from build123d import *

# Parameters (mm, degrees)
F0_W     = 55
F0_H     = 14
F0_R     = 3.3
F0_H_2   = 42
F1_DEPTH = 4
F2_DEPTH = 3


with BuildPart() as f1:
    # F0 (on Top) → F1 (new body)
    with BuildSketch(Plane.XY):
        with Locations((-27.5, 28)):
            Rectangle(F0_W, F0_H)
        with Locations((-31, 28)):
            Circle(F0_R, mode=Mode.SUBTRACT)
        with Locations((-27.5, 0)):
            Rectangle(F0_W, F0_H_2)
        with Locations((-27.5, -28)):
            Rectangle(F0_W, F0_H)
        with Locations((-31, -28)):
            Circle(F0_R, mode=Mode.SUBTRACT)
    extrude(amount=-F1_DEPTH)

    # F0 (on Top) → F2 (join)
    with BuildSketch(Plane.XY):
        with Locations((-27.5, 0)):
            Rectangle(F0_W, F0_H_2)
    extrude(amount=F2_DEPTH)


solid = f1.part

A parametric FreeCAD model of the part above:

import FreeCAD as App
import Part
import Sketcher

V = App.Vector


def add_polygon(sketch, points):
    """Adds a closed chain of lines whose ends are joined by coincident constraints."""
    first, n = sketch.GeometryCount, len(points)
    for a, b in zip(points, points[1:] + points[:1]):
        sketch.addGeometry(Part.LineSegment(App.Vector(*a, 0), App.Vector(*b, 0)), False)
    for i in range(n):
        sketch.addConstraint(Sketcher.Constraint("Coincident", first + i, 2, first + (i + 1) % n, 1))

doc = App.newDocument("Part")
body = doc.addObject("PartDesign::Body", "Body")

sketch1 = doc.addObject("Sketcher::SketchObject", "Sketch")
body.addObject(sketch1)
sketch1.AttachmentSupport = (doc.XY_Plane, [""])
sketch1.MapMode = "FlatFace"
add_polygon(sketch1, [(-55, 35), (-55, -35), (0, -35), (0, 35)])
sketch1.addGeometry(Part.Circle(V(-31, -28, 0), V(0, 0, 1), 3.3), False)
sketch1.addGeometry(Part.Circle(V(-31, 28, 0), V(0, 0, 1), 3.3), False)
sketch1.addConstraint([
    Sketcher.Constraint("Vertical", 0),
    Sketcher.Constraint("Horizontal", 1),
    Sketcher.Constraint("Vertical", 2),
    Sketcher.Constraint("Horizontal", 3),
    Sketcher.Constraint("Equal", 4, 5),
    Sketcher.Constraint("Symmetric", 1, 2, 2, 2, -1, 1),
    Sketcher.Constraint("Symmetric", 4, 3, 5, 3, -1),
    Sketcher.Constraint("Diameter", 4, 6.6),
    Sketcher.Constraint("DistanceX", 1, 1, 1, 2, 55.0),
    Sketcher.Constraint("DistanceY", 0, 2, 0, 1, 70.0),
    Sketcher.Constraint("DistanceX", 4, 3, -1, 1, 31.0),
    Sketcher.Constraint("DistanceY", 4, 3, -1, 1, 28.0),
])
pad1 = doc.addObject("PartDesign::Pad", "Pad")
body.addObject(pad1)
pad1.Profile = sketch1
pad1.Length = 4
pad1.Reversed = True

sketch2 = doc.addObject("Sketcher::SketchObject", "Sketch001")
body.addObject(sketch2)
sketch2.AttachmentSupport = (doc.XY_Plane, [""])
sketch2.MapMode = "FlatFace"
add_polygon(sketch2, [(-55, 21), (-55, -21), (0, -21), (0, 21)])
sketch2.addConstraint([
    Sketcher.Constraint("Vertical", 0),
    Sketcher.Constraint("Horizontal", 1),
    Sketcher.Constraint("Vertical", 2),
    Sketcher.Constraint("Horizontal", 3),
    Sketcher.Constraint("Symmetric", 1, 2, 2, 2, -1, 1),
    Sketcher.Constraint("DistanceX", 1, 1, 1, 2, 55.0),
    Sketcher.Constraint("DistanceY", 0, 2, 0, 1, 42.0),
])
pad2 = doc.addObject("PartDesign::Pad", "Pad001")
body.addObject(pad2)
pad2.Profile = sketch2
pad2.Length = 3

doc.recompute()
